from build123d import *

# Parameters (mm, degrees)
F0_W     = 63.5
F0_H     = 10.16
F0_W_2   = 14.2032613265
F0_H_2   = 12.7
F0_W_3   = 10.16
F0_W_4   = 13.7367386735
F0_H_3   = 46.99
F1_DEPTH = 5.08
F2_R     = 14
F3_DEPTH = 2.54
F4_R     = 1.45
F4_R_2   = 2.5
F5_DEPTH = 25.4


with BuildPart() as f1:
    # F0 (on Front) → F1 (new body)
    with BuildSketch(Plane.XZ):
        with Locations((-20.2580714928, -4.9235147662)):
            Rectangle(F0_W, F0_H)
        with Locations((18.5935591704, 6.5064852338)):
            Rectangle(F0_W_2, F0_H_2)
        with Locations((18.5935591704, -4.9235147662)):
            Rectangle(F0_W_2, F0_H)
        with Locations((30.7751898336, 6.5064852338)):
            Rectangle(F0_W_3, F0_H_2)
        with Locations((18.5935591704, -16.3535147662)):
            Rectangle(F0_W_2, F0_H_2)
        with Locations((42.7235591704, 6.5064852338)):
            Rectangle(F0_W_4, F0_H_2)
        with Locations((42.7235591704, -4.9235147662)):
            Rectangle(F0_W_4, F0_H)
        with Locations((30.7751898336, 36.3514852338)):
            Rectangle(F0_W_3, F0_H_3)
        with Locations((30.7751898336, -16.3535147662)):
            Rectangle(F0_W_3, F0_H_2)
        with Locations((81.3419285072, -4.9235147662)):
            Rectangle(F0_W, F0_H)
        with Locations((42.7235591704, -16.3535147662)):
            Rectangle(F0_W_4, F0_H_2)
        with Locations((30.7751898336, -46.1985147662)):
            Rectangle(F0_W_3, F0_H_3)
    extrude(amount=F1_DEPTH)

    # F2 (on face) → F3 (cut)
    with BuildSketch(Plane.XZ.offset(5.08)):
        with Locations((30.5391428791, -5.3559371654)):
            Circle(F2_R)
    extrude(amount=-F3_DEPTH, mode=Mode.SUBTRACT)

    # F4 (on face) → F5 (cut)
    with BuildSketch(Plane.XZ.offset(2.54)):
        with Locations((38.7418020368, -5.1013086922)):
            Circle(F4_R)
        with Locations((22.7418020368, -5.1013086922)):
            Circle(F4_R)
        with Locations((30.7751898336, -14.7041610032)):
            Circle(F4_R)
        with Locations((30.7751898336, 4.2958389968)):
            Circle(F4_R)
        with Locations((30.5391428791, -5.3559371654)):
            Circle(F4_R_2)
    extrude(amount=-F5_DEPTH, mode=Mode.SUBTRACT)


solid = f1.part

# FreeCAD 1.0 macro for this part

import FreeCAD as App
import Part
import Sketcher
Q = App.Units.Quantity

doc = App.newDocument("Part")
body = doc.addObject("PartDesign::Body", "Body")

sketch1 = body.newObject("Sketcher::SketchObject", "Sketch")
sketch1.AttachmentSupport = (doc.getObject("XZ_Plane"), [""])
sketch1.MapMode = "FlatFace"
sketch1.addGeometry([
    Part.LineSegment(App.Vector(11.491929, -22.703515, 0), App.Vector(25.69519, -22.703515, 0)),
    Part.LineSegment(App.Vector(25.69519, -22.703515, 0), App.Vector(25.69519, -69.693515, 0)),
    Part.LineSegment(App.Vector(25.69519, -69.693515, 0), App.Vector(35.85519, -69.693515, 0)),
    Part.LineSegment(App.Vector(35.85519, -69.693515, 0), App.Vector(35.85519, -22.703515, 0)),
    Part.LineSegment(App.Vector(35.85519, -22.703515, 0), App.Vector(49.591929, -22.703515, 0)),
    Part.LineSegment(App.Vector(49.591929, -22.703515, 0), App.Vector(49.591929, -10.003515, 0)),
    Part.LineSegment(App.Vector(49.591929, -10.003515, 0), App.Vector(113.091929, -10.003515, 0)),
    Part.LineSegment(App.Vector(113.091929, -10.003515, 0), App.Vector(113.091929, 0.156485, 0)),
    Part.LineSegment(App.Vector(113.091929, 0.156485, 0), App.Vector(49.591929, 0.156485, 0)),
    Part.LineSegment(App.Vector(49.591929, 0.156485, 0), App.Vector(49.591929, 12.856485, 0)),
    Part.LineSegment(App.Vector(49.591929, 12.856485, 0), App.Vector(35.85519, 12.856485, 0)),
    Part.LineSegment(App.Vector(35.85519, 12.856485, 0), App.Vector(35.85519, 59.846485, 0)),
    Part.LineSegment(App.Vector(35.85519, 59.846485, 0), App.Vector(25.69519, 59.846485, 0)),
    Part.LineSegment(App.Vector(25.69519, 59.846485, 0), App.Vector(25.69519, 12.856485, 0)),
    Part.LineSegment(App.Vector(25.69519, 12.856485, 0), App.Vector(11.491929, 12.856485, 0)),
    Part.LineSegment(App.Vector(11.491929, 12.856485, 0), App.Vector(11.491929, 0.156485, 0)),
    Part.LineSegment(App.Vector(11.491929, 0.156485, 0), App.Vector(-52.008071, 0.156485, 0)),
    Part.LineSegment(App.Vector(-52.008071, 0.156485, 0), App.Vector(-52.008071, -10.003515, 0)),
    Part.LineSegment(App.Vector(-52.008071, -10.003515, 0), App.Vector(11.491929, -10.003515, 0)),
    Part.LineSegment(App.Vector(11.491929, -10.003515, 0), App.Vector(11.491929, -22.703515, 0)),
    Part.LineSegment(App.Vector(35.85519, -10.003515, 0), App.Vector(25.69519, -10.003515, 0)),
    Part.LineSegment(App.Vector(25.69519, -10.003515, 0), App.Vector(25.69519, 0.156485, 0)),
    Part.LineSegment(App.Vector(25.69519, 0.156485, 0), App.Vector(35.85519, 0.156485, 0)),
    Part.LineSegment(App.Vector(35.85519, 0.156485, 0), App.Vector(35.85519, -10.003515, 0)),
], False)
sketch1.addConstraint([
    Sketcher.Constraint("Coincident", 0, 2, 1, 1),
    Sketcher.Constraint("Coincident", 1, 2, 2, 1),
    Sketcher.Constraint("Coincident", 2, 2, 3, 1),
    Sketcher.Constraint("Coincident", 3, 2, 4, 1),
    Sketcher.Constraint("Coincident", 4, 2, 5, 1),
    Sketcher.Constraint("Coincident", 5, 2, 6, 1),
    Sketcher.Constraint("Coincident", 6, 2, 7, 1),
    Sketcher.Constraint("Coincident", 7, 2, 8, 1),
    Sketcher.Constraint("Coincident", 8, 2, 9, 1),
    Sketcher.Constraint("Coincident", 9, 2, 10, 1),
    Sketcher.Constraint("Coincident", 10, 2, 11, 1),
    Sketcher.Constraint("Coincident", 11, 2, 12, 1),
    Sketcher.Constraint("Coincident", 12, 2, 13, 1),
    Sketcher.Constraint("Coincident", 13, 2, 14, 1),
    Sketcher.Constraint("Coincident", 14, 2, 15, 1),
    Sketcher.Constraint("Coincident", 15, 2, 16, 1),
    Sketcher.Constraint("Coincident", 16, 2, 17, 1),
    Sketcher.Constraint("Coincident", 17, 2, 18, 1),
    Sketcher.Constraint("Coincident", 18, 2, 19, 1),
    Sketcher.Constraint("Coincident", 19, 2, 0, 1),
    Sketcher.Constraint("Coincident", 20, 2, 21, 1),
    Sketcher.Constraint("Coincident", 21, 2, 22, 1),
    Sketcher.Constraint("Coincident", 22, 2, 23, 1),
    Sketcher.Constraint("Coincident", 23, 2, 20, 1),
    Sketcher.Constraint("Horizontal", 0),
    Sketcher.Constraint("Vertical", 1),
    Sketcher.Constraint("Horizontal", 2),
    Sketcher.Constraint("Vertical", 3),
    Sketcher.Constraint("Horizontal", 4),
    Sketcher.Constraint("Vertical", 5),
    Sketcher.Constraint("Horizontal", 6),
    Sketcher.Constraint("Vertical", 7),
    Sketcher.Constraint("Horizontal", 8),
    Sketcher.Constraint("Vertical", 9),
    Sketcher.Constraint("Horizontal", 10),
    Sketcher.Constraint("Vertical", 11),
    Sketcher.Constraint("Horizontal", 12),
    Sketcher.Constraint("Vertical", 13),
    Sketcher.Constraint("Horizontal", 14),
    Sketcher.Constraint("Vertical", 15),
    Sketcher.Constraint("Horizontal", 16),
    Sketcher.Constraint("Vertical", 17),
    Sketcher.Constraint("Horizontal", 18),
    Sketcher.Constraint("Vertical", 19),
    Sketcher.Constraint("Horizontal", 20),
    Sketcher.Constraint("Vertical", 21),
    Sketcher.Constraint("Horizontal", 22),
    Sketcher.Constraint("Vertical", 23),
    Sketcher.Constraint("Horizontal", 0, 2, 3, 2),
    Sketcher.Constraint("Horizontal", 10, 2, 13, 2),
    Sketcher.Constraint("Horizontal", 8, 2, 15, 2),
    Sketcher.Constraint("Horizontal", 6, 2, 17, 2),
    Sketcher.Constraint("Horizontal", 18, 2, 20, 2),
    Sketcher.Constraint("Horizontal", 16, 2, 21, 2),
    Sketcher.Constraint("Vertical", 5, 2, 8, 2),
    Sketcher.Constraint("Vertical", 3, 2, 10, 2),
    Sketcher.Constraint("Vertical", 1, 2, 12, 2),
    Sketcher.Constraint("Vertical", 15, 2, 18, 2),
    Sketcher.Constraint("Vertical", 13, 2, 20, 2),
    Sketcher.Constraint("Vertical", 11, 2, 22, 2),
    Sketcher.Constraint("Equal", 8, 16),
    Sketcher.Constraint("Equal", 22, 7),
    Sketcher.Constraint("Equal", 5, 9),
    Sketcher.Constraint("Equal", 3, 11),
    Sketcher.Constraint("DistanceX", 2, 1, 2, 2, Q("0.4 in")),
    Sketcher.Constraint("DistanceX", 6, 1, 6, 2, Q("2.5 in")),
    Sketcher.Constraint("DistanceY", 5, 1, 5, 2, Q("0.5 in")),
    Sketcher.Constraint("DistanceY", 1, 2, 1, 1, Q("1.85 in")),
    Sketcher.Constraint("DistanceX", 14, 2, 9, 2, Q("1.5 in")),
    Sketcher.Constraint("DistanceX", 0, 1, 0, 2, 14.203261),
    Sketcher.Constraint("DistanceX", -1, 1, 0, 2, 25.69519),
    Sketcher.Constraint("DistanceY", 0, 2, -1, 1, 22.703515),
])
pad1 = body.newObject("PartDesign::Pad", "Pad")
pad1.Profile = sketch1
pad1.Length = Q("0.2 in")

sketch2 = body.newObject("Sketcher::SketchObject", "Sketch001")
sketch2.AttachmentSupport = (doc.getObject("XZ_Plane"), [""])
sketch2.MapMode = "FlatFace"
sketch2.AttachmentOffset = App.Placement(App.Vector(0, 0, 0.2 * 25.4), App.Rotation())
sketch2.addGeometry(Part.Circle(App.Vector(30.539143, -5.355937, 0), App.Vector(0, 0, 1), 14), False)
sketch2.addConstraint([
    Sketcher.Constraint("Diameter", 0, 28.0),
    Sketcher.Constraint("DistanceX", -1, 1, 0, 3, 30.539143),
    Sketcher.Constraint("DistanceY", 0, 3, -1, 1, 5.355937),
])
pocket1 = body.newObject("PartDesign::Pocket", "Pocket")
pocket1.Profile = sketch2
pocket1.Length = Q("0.1 in")

sketch3 = body.newObject("Sketcher::SketchObject", "Sketch002")
sketch3.AttachmentSupport = (doc.getObject("XZ_Plane"), [""])
sketch3.MapMode = "FlatFace"
sketch3.AttachmentOffset = App.Placement(App.Vector(0, 0, 0.1 * 25.4), App.Rotation())
sketch3.addGeometry([
    Part.Circle(App.Vector(38.741802, -5.101309, 0), App.Vector(0, 0, 1), 1.45),
    Part.Circle(App.Vector(22.741802, -5.101309, 0), App.Vector(0, 0, 1), 1.45),
    Part.Circle(App.Vector(30.77519, -14.704161, 0), App.Vector(0, 0, 1), 1.45),
    Part.Circle(App.Vector(30.77519, 4.295839, 0), App.Vector(0, 0, 1), 1.45),
    Part.Circle(App.Vector(30.539143, -5.355937, 0), App.Vector(0, 0, 1), 2.5),
], False)
sketch3.addConstraint([
    Sketcher.Constraint("Equal", 0, 1),
    Sketcher.Constraint("Equal", 1, 2),
    Sketcher.Constraint("Equal", 2, 3),
    Sketcher.Constraint("Horizontal", 0, 3, 1, 3),
    Sketcher.Constraint("Vertical", 2, 3, 3, 3),
    Sketcher.Constraint("Diameter", 0, 2.9),
    Sketcher.Constraint("Diameter", 4, 5.0),
    Sketcher.Constraint("DistanceX", 1, 3, 0, 3, 16.0),
    Sketcher.Constraint("DistanceY", 2, 3, 3, 3, 19.0),
    Sketcher.Constraint("DistanceY", 0, 3, -1, 1, 5.101309),
    Sketcher.Constraint("DistanceX", -1, 1, 2, 3, 30.77519),
    Sketcher.Constraint("DistanceY", 2, 3, -1, 1, 14.704161),
    Sketcher.Constraint("DistanceX", 1, 3, 4, 3, 7.797341),
    Sketcher.Constraint("DistanceY", 4, 3, 1, 3, 0.254628),
    Sketcher.Constraint("DistanceX", -1, 1, 0, 3, 38.741802),
])
pocket2 = body.newObject("PartDesign::Pocket", "Pocket001")
pocket2.Profile = sketch3
pocket2.Length = Q("1 in")

doc.recompute()
